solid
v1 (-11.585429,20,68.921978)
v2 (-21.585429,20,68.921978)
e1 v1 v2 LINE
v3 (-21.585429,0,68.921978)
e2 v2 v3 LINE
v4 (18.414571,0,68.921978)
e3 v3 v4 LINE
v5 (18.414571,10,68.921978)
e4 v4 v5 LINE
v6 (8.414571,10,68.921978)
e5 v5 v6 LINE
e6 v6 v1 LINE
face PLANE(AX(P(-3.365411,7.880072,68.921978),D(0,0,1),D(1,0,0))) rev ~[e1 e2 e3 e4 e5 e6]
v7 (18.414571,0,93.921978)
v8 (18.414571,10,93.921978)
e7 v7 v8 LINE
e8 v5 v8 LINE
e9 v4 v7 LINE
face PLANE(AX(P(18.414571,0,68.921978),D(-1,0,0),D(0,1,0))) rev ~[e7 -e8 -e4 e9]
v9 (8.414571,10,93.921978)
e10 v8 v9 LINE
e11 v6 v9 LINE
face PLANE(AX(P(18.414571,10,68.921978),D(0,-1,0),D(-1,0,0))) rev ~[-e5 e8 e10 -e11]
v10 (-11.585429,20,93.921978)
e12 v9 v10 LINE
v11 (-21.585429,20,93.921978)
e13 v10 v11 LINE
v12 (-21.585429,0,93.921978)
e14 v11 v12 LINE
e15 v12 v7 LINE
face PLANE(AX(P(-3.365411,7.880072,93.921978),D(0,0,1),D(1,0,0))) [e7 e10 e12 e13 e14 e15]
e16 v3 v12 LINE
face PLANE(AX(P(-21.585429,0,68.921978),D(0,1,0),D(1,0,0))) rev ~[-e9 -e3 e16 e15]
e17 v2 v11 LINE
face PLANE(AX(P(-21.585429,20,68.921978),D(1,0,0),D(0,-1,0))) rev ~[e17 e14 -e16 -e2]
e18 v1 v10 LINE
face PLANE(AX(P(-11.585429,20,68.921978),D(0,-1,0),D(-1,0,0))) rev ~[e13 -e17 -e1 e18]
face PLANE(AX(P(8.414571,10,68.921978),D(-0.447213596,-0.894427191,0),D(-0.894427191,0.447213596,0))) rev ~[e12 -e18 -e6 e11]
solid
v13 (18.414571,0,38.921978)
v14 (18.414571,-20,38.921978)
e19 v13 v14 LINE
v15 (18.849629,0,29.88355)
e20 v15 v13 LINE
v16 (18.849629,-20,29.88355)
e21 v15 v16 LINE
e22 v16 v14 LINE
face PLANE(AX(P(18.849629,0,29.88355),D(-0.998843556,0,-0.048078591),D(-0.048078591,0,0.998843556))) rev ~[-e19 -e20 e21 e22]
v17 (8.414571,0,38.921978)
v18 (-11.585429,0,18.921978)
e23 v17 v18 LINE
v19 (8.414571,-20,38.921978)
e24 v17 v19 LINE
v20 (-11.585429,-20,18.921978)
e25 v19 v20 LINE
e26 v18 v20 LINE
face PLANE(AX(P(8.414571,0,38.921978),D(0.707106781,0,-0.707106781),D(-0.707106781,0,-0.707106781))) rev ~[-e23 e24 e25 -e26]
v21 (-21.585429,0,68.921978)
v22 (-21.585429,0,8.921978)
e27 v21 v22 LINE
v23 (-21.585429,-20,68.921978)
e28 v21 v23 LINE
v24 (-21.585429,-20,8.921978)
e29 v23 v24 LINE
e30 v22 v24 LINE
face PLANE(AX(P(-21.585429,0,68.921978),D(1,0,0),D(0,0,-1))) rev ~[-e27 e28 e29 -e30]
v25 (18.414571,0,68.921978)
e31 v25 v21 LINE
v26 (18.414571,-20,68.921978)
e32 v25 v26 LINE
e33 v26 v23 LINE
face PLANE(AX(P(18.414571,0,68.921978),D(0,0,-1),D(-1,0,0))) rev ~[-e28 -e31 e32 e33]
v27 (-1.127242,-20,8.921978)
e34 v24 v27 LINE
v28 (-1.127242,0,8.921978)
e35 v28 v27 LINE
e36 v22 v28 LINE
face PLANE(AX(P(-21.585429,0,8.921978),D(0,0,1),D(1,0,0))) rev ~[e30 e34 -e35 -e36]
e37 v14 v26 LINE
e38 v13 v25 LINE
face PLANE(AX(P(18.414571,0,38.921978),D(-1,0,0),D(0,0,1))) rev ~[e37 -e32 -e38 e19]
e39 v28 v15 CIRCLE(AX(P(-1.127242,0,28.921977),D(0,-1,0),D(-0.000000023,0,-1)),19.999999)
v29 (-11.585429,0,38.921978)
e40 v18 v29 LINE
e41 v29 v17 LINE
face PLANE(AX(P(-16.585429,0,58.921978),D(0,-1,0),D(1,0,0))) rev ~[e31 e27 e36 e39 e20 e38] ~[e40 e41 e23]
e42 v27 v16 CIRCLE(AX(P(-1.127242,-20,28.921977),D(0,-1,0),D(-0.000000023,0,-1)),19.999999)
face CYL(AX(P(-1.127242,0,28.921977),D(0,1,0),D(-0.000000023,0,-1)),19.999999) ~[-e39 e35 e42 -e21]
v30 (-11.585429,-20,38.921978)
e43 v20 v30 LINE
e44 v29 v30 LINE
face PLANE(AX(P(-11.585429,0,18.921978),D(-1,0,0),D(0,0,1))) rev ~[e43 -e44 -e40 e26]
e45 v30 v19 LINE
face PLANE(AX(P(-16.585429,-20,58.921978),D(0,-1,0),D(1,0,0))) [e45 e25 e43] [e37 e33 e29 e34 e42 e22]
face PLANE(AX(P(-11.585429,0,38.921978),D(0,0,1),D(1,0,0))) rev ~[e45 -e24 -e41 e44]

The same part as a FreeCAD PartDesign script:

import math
import FreeCAD as App
import Part
import Sketcher
Q = App.Units.Quantity


def add_polygon(sketch, points):
    """Adds a closed chain of lines whose ends are joined by coincident constraints."""
    first, n = sketch.GeometryCount, len(points)
    for a, b in zip(points, points[1:] + points[:1]):
        sketch.addGeometry(Part.LineSegment(App.Vector(*a, 0), App.Vector(*b, 0)), False)
    for i in range(n):
        sketch.addConstraint(Sketcher.Constraint("Coincident", first + i, 2, first + (i + 1) % n, 1))

doc = App.newDocument("Part")
body = doc.addObject("PartDesign::Body", "Body")

sketch1 = doc.addObject("Sketcher::SketchObject", "Sketch")
body.addObject(sketch1)
sketch1.AttachmentSupport = (doc.XZ_Plane, [""])
sketch1.MapMode = "FlatFace"
sketch1.addGeometry(Part.LineSegment(App.Vector(-22, 69, 0), App.Vector(-22, 9, 0)), False)
sketch1.addGeometry(Part.LineSegment(App.Vector(-22, 9, 0), App.Vector(-1, 9, 0)), False)
sketch1.addGeometry(Part.ArcOfCircle(Part.Circle(App.Vector(-1, 29, 0), App.Vector(0, 0, 1), 20), math.radians(-90), math.radians(3)), False)
sketch1.addGeometry(Part.LineSegment(App.Vector(19, 30, 0), App.Vector(18, 39, 0)), False)
sketch1.addGeometry(Part.LineSegment(App.Vector(18, 39, 0), App.Vector(18, 69, 0)), False)
sketch1.addGeometry(Part.LineSegment(App.Vector(18, 69, 0), App.Vector(-22, 69, 0)), False)
add_polygon(sketch1, [(-12, 39), (8, 39), (-12, 19)])
sketch1.addConstraint(Sketcher.Constraint("Coincident", 0, 2, 1, 1))
sketch1.addConstraint(Sketcher.Constraint("Tangent", 1, 2, 2, 1))
sketch1.addConstraint(Sketcher.Constraint("Tangent", 2, 2, 3, 1))
sketch1.addConstraint(Sketcher.Constraint("Coincident", 3, 2, 4, 1))
sketch1.addConstraint(Sketcher.Constraint("Coincident", 4, 2, 5, 1))
sketch1.addConstraint(Sketcher.Constraint("Coincident", 5, 2, 0, 1))
sketch1.addConstraint(Sketcher.Constraint("Vertical", 0))
sketch1.addConstraint(Sketcher.Constraint("Horizontal", 1))
sketch1.addConstraint(Sketcher.Constraint("Vertical", 4))
sketch1.addConstraint(Sketcher.Constraint("Horizontal", 5))
sketch1.addConstraint(Sketcher.Constraint("Horizontal", 6))
sketch1.addConstraint(Sketcher.Constraint("Vertical", 8))
sketch1.addConstraint(Sketcher.Constraint("Horizontal", 3, 2, 6, 2))
sketch1.addConstraint(Sketcher.Constraint("Equal", 6, 8))
sketch1.addConstraint(Sketcher.Constraint("Radius", 2, Q("19.999999 mm")))
sketch1.addConstraint(Sketcher.Constraint("DistanceX", 5, 2, 5, 1, Q("40 mm")))
sketch1.addConstraint(Sketcher.Constraint("DistanceX", 6, 1, 6, 2, Q("20 mm")))
sketch1.addConstraint(Sketcher.Constraint("DistanceY", 0, 2, 0, 1, Q("60 mm")))
sketch1.addConstraint(Sketcher.Constraint("DistanceY", 4, 1, 4, 2, Q("30 mm")))
sketch1.addConstraint(Sketcher.Constraint("DistanceX", 6, 2, 3, 2, Q("10 mm")))
sketch1.addConstraint(Sketcher.Constraint("DistanceX", 1, 1, 1, 2, Q("20.458187 mm")))
sketch1.addConstraint(Sketcher.Constraint("DistanceX", 2, 3, -1, 1, Q("1.127242 mm")))
sketch1.addConstraint(Sketcher.Constraint("DistanceY", -1, 1, 2, 2, Q("29.88355 mm")))
pad1 = doc.addObject("PartDesign::Pad", "Pad")
body.addObject(pad1)
pad1.Profile = sketch1
pad1.Length = 20
body2 = doc.addObject("PartDesign::Body", "Body001")

sketch2 = doc.addObject("Sketcher::SketchObject", "Sketch001")
body2.addObject(sketch2)
sketch2.AttachmentSupport = (doc.getObject("XY_Plane001"), [""])
sketch2.MapMode = "FlatFace"
sketch2.AttachmentOffset = App.Placement(App.Vector(0, 0, 68.921978), App.Rotation())
add_polygon(sketch2, [(-22, 20), (-22, 0), (18, 0), (18, 10), (8, 10), (-12, 20)])
sketch2.addConstraint(Sketcher.Constraint("Vertical", 0))
sketch2.addConstraint(Sketcher.Constraint("Horizontal", 1))
sketch2.addConstraint(Sketcher.Constraint("Vertical", 2))
sketch2.addConstraint(Sketcher.Constraint("Horizontal", 3))
sketch2.addConstraint(Sketcher.Constraint("Horizontal", 5))
sketch2.addConstraint(Sketcher.Constraint("PointOnObject", 0, 2, -1))
sketch2.addConstraint(Sketcher.Constraint("Equal", 3, 5))
sketch2.addConstraint(Sketcher.Constraint("Equal", 5, 2))
sketch2.addConstraint(Sketcher.Constraint("DistanceX", 1, 1, 1, 2, Q("40 mm")))
sketch2.addConstraint(Sketcher.Constraint("DistanceX", 3, 2, 3, 1, Q("10 mm")))
sketch2.addConstraint(Sketcher.Constraint("DistanceY", 0, 2, 0, 1, Q("20 mm")))
sketch2.addConstraint(Sketcher.Constraint("DistanceX", 0, 2, -1, 1, Q("21.585429 mm")))
pad2 = doc.addObject("PartDesign::Pad", "Pad001")
body2.addObject(pad2)
pad2.Profile = sketch2
pad2.Length = 25

doc.recompute()
